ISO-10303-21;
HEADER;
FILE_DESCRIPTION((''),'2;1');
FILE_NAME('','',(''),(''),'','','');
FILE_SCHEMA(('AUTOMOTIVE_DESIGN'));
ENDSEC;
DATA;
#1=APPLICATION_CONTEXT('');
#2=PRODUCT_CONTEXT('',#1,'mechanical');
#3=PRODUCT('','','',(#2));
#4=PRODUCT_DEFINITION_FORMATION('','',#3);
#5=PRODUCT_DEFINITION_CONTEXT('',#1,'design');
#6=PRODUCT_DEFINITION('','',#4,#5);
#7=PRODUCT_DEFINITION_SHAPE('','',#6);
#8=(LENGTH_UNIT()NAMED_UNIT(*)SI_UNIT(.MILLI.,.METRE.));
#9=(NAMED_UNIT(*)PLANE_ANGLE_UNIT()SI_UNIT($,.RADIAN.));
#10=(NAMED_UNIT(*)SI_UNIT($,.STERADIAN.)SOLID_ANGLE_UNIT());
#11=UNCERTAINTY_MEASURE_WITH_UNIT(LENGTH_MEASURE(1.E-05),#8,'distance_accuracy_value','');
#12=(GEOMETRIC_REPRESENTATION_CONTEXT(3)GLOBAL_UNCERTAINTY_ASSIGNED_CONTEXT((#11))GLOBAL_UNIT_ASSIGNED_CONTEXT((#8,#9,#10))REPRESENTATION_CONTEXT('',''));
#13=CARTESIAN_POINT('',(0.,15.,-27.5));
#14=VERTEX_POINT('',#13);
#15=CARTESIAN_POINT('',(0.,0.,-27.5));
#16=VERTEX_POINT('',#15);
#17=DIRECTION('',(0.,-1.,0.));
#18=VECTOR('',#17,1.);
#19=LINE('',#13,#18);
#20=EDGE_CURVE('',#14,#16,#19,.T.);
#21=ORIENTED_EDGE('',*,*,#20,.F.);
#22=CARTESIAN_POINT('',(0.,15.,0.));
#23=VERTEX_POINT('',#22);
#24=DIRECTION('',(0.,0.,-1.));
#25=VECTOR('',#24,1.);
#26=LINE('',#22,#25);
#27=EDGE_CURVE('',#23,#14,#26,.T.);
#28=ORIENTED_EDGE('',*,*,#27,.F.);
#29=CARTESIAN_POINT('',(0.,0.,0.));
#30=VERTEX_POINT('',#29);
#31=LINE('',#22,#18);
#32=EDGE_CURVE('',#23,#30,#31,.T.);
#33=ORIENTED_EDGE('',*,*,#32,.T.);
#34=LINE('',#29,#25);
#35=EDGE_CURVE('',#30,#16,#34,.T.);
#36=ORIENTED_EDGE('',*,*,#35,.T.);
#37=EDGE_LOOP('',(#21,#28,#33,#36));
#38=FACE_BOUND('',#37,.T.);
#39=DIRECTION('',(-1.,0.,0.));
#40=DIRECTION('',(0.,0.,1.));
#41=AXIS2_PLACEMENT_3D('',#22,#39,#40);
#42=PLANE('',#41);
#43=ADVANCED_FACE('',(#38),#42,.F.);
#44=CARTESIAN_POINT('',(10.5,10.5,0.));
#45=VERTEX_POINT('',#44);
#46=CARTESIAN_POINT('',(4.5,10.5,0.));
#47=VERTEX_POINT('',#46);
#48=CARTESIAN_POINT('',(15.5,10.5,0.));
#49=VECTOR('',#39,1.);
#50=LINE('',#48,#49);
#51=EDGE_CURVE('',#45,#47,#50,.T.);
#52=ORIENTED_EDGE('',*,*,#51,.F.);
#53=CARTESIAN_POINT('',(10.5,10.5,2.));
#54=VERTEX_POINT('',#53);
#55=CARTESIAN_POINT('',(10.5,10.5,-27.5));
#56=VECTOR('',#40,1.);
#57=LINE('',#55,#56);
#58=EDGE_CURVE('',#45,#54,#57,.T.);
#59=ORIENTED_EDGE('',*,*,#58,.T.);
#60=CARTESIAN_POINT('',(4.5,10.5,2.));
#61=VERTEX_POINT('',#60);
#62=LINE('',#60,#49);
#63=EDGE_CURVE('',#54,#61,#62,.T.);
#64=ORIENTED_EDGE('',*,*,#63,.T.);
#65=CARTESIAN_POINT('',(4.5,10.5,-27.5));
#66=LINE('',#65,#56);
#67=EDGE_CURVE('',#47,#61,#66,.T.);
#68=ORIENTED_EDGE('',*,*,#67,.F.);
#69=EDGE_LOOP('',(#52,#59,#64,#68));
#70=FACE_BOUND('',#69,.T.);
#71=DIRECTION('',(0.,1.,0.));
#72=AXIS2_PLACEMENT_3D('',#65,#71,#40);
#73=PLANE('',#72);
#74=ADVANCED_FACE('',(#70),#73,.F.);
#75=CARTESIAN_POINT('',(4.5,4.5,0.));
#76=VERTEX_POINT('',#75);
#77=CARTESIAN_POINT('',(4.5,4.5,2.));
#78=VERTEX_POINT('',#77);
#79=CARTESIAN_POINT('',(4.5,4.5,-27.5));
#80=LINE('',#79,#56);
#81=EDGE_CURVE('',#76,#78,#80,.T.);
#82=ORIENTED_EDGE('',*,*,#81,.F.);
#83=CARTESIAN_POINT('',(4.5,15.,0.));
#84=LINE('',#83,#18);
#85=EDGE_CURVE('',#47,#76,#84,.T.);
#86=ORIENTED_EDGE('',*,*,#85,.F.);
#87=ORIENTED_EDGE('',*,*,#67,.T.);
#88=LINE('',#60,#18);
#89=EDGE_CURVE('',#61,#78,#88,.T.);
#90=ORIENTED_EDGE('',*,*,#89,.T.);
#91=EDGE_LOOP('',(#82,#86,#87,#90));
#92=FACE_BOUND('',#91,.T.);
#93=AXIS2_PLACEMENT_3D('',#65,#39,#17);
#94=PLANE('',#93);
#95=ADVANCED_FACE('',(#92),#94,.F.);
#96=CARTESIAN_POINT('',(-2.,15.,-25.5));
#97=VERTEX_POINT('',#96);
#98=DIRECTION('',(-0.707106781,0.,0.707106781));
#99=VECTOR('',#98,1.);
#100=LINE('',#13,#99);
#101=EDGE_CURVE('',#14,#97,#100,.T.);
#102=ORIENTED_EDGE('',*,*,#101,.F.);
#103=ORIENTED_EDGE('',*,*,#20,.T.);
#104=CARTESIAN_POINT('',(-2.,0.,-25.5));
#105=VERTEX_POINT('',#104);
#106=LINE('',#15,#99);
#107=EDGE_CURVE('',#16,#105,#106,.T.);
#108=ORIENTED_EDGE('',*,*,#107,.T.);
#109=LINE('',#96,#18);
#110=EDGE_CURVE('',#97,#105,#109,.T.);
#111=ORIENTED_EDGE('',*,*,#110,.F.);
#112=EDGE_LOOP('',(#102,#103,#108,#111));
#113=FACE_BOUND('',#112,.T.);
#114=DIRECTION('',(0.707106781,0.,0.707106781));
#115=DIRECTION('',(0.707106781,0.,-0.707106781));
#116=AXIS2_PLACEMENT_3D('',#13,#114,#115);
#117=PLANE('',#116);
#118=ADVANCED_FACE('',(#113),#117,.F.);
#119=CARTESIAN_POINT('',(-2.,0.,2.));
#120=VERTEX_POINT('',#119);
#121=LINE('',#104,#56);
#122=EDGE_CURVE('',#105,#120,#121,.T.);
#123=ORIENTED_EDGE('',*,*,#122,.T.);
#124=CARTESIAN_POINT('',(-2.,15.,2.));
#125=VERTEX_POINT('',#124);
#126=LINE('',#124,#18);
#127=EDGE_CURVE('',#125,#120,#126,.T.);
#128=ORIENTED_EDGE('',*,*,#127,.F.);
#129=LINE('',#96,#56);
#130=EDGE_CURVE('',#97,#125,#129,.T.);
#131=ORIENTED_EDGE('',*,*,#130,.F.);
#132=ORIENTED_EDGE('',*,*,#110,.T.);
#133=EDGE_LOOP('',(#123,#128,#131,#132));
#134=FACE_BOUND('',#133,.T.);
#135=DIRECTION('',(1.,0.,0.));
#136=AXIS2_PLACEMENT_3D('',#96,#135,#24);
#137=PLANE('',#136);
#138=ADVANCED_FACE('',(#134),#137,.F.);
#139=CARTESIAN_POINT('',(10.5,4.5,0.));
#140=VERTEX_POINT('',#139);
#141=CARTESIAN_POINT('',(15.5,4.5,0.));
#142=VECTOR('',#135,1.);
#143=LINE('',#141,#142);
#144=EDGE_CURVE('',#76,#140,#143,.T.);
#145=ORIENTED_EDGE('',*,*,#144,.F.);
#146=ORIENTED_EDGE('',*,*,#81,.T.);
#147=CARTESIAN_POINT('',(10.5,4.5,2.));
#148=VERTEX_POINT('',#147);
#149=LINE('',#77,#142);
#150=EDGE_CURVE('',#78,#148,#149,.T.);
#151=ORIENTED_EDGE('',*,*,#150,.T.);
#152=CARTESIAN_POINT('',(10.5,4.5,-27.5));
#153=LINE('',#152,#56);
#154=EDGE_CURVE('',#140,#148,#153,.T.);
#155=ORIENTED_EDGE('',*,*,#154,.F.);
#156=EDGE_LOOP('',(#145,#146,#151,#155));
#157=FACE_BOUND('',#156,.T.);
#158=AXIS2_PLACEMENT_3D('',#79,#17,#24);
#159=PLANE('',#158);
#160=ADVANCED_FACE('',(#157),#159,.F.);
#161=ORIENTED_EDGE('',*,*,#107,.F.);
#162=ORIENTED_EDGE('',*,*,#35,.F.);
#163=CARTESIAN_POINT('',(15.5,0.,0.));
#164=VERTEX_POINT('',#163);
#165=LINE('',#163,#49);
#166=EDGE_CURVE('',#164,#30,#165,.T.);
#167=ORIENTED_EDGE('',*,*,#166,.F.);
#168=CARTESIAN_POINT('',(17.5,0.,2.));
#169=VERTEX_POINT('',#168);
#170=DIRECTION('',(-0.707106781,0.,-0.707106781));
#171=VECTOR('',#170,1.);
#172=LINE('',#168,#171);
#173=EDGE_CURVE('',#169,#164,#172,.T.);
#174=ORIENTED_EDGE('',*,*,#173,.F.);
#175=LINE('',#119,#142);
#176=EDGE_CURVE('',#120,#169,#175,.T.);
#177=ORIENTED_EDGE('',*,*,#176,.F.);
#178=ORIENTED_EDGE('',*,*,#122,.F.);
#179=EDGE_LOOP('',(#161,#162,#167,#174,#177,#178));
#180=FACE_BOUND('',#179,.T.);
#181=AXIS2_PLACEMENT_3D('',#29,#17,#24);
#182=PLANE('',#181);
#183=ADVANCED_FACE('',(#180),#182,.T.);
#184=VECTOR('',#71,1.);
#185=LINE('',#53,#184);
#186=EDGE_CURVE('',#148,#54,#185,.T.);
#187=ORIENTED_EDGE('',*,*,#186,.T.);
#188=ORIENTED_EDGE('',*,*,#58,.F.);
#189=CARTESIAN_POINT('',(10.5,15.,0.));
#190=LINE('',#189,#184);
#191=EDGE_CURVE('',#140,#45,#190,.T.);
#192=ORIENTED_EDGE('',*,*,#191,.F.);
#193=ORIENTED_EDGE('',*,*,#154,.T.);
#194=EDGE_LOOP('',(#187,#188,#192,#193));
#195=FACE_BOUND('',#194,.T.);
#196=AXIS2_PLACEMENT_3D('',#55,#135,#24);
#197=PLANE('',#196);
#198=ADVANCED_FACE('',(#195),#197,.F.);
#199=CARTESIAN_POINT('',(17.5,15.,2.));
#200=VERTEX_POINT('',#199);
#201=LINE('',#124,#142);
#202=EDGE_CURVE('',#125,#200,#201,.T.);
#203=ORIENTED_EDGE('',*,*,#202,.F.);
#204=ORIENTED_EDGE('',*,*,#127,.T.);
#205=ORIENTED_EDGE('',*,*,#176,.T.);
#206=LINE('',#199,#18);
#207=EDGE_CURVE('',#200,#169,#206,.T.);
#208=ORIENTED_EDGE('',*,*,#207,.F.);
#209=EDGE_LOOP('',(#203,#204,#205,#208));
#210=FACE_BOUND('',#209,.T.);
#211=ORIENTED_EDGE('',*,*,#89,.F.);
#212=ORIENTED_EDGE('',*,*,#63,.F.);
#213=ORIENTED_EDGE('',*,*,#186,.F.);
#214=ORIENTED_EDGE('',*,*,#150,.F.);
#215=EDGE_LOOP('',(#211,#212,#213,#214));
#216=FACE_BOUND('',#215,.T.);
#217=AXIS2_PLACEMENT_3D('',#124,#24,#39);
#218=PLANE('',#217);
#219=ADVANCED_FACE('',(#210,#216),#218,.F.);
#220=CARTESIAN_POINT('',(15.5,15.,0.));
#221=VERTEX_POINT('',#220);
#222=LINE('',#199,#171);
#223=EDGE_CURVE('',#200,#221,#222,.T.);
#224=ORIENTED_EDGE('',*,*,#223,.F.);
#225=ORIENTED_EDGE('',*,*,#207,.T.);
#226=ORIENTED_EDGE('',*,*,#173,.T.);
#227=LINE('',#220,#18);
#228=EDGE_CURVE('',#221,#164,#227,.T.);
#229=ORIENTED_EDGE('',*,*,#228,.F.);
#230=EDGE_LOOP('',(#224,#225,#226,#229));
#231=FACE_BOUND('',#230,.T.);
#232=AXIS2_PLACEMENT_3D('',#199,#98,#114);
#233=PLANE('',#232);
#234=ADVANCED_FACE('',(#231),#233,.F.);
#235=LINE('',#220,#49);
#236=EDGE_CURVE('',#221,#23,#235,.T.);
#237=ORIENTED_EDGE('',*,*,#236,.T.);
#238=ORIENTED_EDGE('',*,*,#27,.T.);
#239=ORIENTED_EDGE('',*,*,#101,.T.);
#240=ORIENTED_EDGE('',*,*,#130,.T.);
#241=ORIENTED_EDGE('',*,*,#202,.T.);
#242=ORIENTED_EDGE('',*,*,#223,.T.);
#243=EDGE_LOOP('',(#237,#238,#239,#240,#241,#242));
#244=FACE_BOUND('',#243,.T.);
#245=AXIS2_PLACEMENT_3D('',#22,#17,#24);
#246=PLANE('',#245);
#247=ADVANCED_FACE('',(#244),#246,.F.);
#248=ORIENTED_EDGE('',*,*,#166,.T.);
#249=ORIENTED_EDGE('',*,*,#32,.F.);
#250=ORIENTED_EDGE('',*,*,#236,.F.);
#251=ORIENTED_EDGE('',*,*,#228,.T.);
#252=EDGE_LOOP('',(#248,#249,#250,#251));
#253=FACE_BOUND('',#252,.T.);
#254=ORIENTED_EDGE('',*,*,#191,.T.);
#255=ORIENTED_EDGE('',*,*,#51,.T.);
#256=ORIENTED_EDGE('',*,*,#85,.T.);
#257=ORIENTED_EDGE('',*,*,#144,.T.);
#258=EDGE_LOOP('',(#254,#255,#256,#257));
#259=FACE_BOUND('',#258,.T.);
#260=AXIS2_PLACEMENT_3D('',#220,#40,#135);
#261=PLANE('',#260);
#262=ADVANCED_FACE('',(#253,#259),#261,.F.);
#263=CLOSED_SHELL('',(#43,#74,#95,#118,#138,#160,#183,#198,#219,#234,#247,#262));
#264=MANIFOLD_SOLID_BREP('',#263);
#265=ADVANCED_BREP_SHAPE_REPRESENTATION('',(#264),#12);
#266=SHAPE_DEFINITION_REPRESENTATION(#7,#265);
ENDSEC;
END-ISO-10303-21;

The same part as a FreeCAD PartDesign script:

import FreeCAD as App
import Part
import Sketcher

doc = App.newDocument("Part")
body = doc.addObject("PartDesign::Body", "Body")

# Sketch on XZ plane
sketch1 = body.newObject("Sketcher::SketchObject", "Sketch")
sketch1.AttachmentSupport = (doc.getObject("XZ_Plane"), [""])
sketch1.MapMode = "FlatFace"
sketch1.addGeometry([
    Part.LineSegment(App.Vector(-2, -25.5, 0), App.Vector(-2, 2, 0)),  # 0
    Part.LineSegment(App.Vector(-2, 2, 0), App.Vector(17.5, 2, 0)),  # 1
    Part.LineSegment(App.Vector(17.5, 2, 0), App.Vector(15.5, 0, 0)),  # 2
    Part.LineSegment(App.Vector(15.5, 0, 0), App.Vector(0, 0, 0)),  # 3
    Part.LineSegment(App.Vector(0, 0, 0), App.Vector(0, -27.5, 0)),  # 4
    Part.LineSegment(App.Vector(0, -27.5, 0), App.Vector(-2, -25.5, 0)),  # 5
], False)
sketch1.addConstraint([
    Sketcher.Constraint("Coincident", 0, 2, 1, 1),
    Sketcher.Constraint("Coincident", 1, 2, 2, 1),
    Sketcher.Constraint("Coincident", 2, 2, 3, 1),
    Sketcher.Constraint("Coincident", 3, 2, 4, 1),
    Sketcher.Constraint("Coincident", 4, 2, 5, 1),
    Sketcher.Constraint("Coincident", 5, 2, 0, 1),
    Sketcher.Constraint("Vertical", 0),
    Sketcher.Constraint("Horizontal", 1),
    Sketcher.Constraint("Horizontal", 3),
    Sketcher.Constraint("Vertical", 4),
    Sketcher.Constraint("Coincident", 3, 2, -1, 1),
    Sketcher.Constraint("Perpendicular", 2, 5),
    Sketcher.Constraint("Equal", 0, 4),
    Sketcher.Constraint("Equal", 2, 5),
    Sketcher.Constraint("DistanceX", 1, 1, 1, 2, 19.5),
    Sketcher.Constraint("DistanceX", 3, 2, 3, 1, 15.5),
    Sketcher.Constraint("DistanceY", 0, 1, 0, 2, 27.5),
])
pad1 = body.newObject("PartDesign::Pad", "Pad")
pad1.Profile = sketch1
pad1.Length = 15
pad1.Reversed = True

# Sketch on XY plane
sketch2 = body.newObject("Sketcher::SketchObject", "Sketch001")
sketch2.AttachmentSupport = (doc.getObject("XY_Plane"), [""])
sketch2.MapMode = "FlatFace"
sketch2.AttachmentOffset = App.Placement(App.Vector(0, 0, 2), App.Rotation())
sketch2.addGeometry([
    Part.LineSegment(App.Vector(4.5, 10.5, 0), App.Vector(4.5, 4.5, 0)),
    Part.LineSegment(App.Vector(4.5, 4.5, 0), App.Vector(10.5, 4.5, 0)),
    Part.LineSegment(App.Vector(10.5, 4.5, 0), App.Vector(10.5, 10.5, 0)),
    Part.LineSegment(App.Vector(10.5, 10.5, 0), App.Vector(4.5, 10.5, 0)),
], False)
sketch2.addConstraint([
    Sketcher.Constraint("Coincident", 0, 2, 1, 1),
    Sketcher.Constraint("Coincident", 1, 2, 2, 1),
    Sketcher.Constraint("Coincident", 2, 2, 3, 1),
    Sketcher.Constraint("Coincident", 3, 2, 0, 1),
    Sketcher.Constraint("Vertical", 0),
    Sketcher.Constraint("Horizontal", 1),
    Sketcher.Constraint("Vertical", 2),
    Sketcher.Constraint("Horizontal", 3),
    Sketcher.Constraint("Equal", 3, 0),
    Sketcher.Constraint("DistanceX", 1, 1, 1, 2, 6.0),
    Sketcher.Constraint("DistanceX", -1, 1, 0, 2, 4.5),
    Sketcher.Constraint("DistanceY", -1, 1, 0, 2, 4.5),
])
pocket1 = body.newObject("PartDesign::Pocket", "Pocket")
pocket1.Profile = sketch2
pocket1.Type = "ThroughAll"

doc.recompute()
